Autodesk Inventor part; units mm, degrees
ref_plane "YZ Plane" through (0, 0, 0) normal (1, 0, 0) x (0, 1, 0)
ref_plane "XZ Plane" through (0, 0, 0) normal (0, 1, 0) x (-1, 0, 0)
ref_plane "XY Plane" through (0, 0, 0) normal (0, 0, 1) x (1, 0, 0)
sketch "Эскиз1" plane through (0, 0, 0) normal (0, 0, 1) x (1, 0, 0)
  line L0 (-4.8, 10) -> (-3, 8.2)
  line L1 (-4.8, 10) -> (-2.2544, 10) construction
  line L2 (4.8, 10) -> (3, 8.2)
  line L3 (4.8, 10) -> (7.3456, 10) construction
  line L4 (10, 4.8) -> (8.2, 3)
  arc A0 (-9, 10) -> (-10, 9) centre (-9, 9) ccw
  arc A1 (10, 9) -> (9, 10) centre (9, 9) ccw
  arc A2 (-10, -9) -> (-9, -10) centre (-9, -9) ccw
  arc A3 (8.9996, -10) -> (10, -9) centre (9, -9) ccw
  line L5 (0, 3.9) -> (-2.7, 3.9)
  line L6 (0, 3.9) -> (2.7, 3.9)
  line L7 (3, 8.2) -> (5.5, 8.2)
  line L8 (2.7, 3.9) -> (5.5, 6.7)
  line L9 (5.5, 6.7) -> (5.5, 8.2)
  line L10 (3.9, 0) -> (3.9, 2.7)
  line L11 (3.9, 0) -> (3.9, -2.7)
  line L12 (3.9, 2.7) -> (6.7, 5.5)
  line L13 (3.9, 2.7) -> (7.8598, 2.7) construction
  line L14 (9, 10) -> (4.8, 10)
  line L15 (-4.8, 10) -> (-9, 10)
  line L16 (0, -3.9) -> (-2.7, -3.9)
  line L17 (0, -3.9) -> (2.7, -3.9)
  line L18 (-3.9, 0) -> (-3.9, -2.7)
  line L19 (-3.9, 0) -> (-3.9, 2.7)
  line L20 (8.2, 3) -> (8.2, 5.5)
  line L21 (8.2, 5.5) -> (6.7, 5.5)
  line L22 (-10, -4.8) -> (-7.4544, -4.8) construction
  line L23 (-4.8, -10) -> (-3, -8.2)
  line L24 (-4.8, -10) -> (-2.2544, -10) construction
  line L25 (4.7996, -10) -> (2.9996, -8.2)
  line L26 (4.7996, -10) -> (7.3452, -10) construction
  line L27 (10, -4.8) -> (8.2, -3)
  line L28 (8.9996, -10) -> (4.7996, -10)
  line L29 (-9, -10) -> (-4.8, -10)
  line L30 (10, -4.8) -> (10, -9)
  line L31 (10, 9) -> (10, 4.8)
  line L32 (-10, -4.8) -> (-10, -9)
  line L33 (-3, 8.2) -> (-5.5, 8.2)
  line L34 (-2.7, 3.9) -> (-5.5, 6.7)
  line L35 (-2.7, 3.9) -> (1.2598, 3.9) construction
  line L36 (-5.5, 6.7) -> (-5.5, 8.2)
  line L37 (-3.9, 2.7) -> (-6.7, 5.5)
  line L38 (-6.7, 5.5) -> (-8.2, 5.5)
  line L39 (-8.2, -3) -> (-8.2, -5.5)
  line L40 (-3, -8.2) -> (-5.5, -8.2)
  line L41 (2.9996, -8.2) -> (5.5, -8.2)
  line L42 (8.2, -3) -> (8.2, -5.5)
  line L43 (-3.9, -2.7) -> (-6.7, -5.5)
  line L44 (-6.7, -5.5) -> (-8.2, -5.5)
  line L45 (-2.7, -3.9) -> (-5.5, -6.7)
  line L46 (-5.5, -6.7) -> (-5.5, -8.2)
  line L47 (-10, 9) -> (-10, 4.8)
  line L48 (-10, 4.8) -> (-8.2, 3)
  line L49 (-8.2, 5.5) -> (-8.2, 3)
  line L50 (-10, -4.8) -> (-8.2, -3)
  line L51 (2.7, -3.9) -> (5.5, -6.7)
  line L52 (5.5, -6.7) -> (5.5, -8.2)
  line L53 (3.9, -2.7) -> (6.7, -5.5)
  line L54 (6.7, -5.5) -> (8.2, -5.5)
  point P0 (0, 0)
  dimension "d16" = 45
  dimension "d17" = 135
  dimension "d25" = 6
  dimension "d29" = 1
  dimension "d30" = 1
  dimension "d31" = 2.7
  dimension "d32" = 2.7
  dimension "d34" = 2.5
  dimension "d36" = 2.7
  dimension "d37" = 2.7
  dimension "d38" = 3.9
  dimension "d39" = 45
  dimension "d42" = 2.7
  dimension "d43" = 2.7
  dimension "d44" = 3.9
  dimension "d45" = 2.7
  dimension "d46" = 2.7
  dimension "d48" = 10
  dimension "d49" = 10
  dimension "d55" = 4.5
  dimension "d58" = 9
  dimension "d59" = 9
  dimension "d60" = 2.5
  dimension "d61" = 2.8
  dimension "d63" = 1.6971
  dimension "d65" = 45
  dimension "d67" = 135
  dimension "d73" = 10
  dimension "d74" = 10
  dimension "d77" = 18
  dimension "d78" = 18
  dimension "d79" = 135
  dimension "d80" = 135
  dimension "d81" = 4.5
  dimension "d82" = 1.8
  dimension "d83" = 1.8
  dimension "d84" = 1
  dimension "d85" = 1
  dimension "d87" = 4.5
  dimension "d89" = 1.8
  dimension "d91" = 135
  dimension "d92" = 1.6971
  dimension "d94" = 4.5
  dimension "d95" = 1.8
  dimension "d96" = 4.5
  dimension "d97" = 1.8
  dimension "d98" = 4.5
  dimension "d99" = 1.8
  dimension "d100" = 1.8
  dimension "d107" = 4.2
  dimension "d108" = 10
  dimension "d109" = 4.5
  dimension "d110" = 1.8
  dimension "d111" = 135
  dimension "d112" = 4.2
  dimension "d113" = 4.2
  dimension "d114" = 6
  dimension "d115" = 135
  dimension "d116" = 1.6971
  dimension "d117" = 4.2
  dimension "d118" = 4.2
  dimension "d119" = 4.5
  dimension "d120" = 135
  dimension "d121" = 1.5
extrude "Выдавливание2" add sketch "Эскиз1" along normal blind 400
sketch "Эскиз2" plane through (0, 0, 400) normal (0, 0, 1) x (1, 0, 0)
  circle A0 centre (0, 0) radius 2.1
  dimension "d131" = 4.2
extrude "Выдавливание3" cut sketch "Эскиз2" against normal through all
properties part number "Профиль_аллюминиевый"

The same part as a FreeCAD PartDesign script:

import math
import FreeCAD as App
import Part
import Sketcher

doc = App.newDocument("Part")
body = doc.addObject("PartDesign::Body", "Body")

# Sketch on XY plane
sketch1 = doc.addObject("Sketcher::SketchObject", "Sketch")
body.addObject(sketch1)
sketch1.AttachmentSupport = (doc.XY_Plane, [""])
sketch1.MapMode = "FlatFace"
sketch1.addGeometry(Part.LineSegment(App.Vector(-3, 8.2, 0), App.Vector(-4.8, 10, 0)), False)
sketch1.addGeometry(Part.LineSegment(App.Vector(-4.8, 10, 0), App.Vector(-9, 10, 0)), False)
sketch1.addGeometry(Part.ArcOfCircle(Part.Circle(App.Vector(-9, 9, 0), App.Vector(0, 0, 1), 1), math.radians(90), math.radians(180)), False)
sketch1.addGeometry(Part.LineSegment(App.Vector(-10, 9, 0), App.Vector(-10, 4.8, 0)), False)
sketch1.addGeometry(Part.LineSegment(App.Vector(-10, 4.8, 0), App.Vector(-8.2, 3, 0)), False)
sketch1.addGeometry(Part.LineSegment(App.Vector(-8.2, 3, 0), App.Vector(-8.2, 5.5, 0)), False)
sketch1.addGeometry(Part.LineSegment(App.Vector(-8.2, 5.5, 0), App.Vector(-6.7, 5.5, 0)), False)
sketch1.addGeometry(Part.LineSegment(App.Vector(-6.7, 5.5, 0), App.Vector(-3.9, 2.7, 0)), False)
sketch1.addGeometry(Part.LineSegment(App.Vector(-3.9, 2.7, 0), App.Vector(-3.9, -2.7, 0)), False)
sketch1.addGeometry(Part.LineSegment(App.Vector(-3.9, -2.7, 0), App.Vector(-6.7, -5.5, 0)), False)
sketch1.addGeometry(Part.LineSegment(App.Vector(-6.7, -5.5, 0), App.Vector(-8.2, -5.5, 0)), False)
sketch1.addGeometry(Part.LineSegment(App.Vector(-8.2, -5.5, 0), App.Vector(-8.2, -3, 0)), False)
sketch1.addGeometry(Part.LineSegment(App.Vector(-8.2, -3, 0), App.Vector(-10, -4.8, 0)), False)
sketch1.addGeometry(Part.LineSegment(App.Vector(-10, -4.8, 0), App.Vector(-10, -9, 0)), False)
sketch1.addGeometry(Part.ArcOfCircle(Part.Circle(App.Vector(-9, -9, 0), App.Vector(0, 0, 1), 1), math.radians(180), math.radians(270)), False)
sketch1.addGeometry(Part.LineSegment(App.Vector(-9, -10, 0), App.Vector(-4.8, -10, 0)), False)
sketch1.addGeometry(Part.LineSegment(App.Vector(-4.8, -10, 0), App.Vector(-3, -8.2, 0)), False)
sketch1.addGeometry(Part.LineSegment(App.Vector(-3, -8.2, 0), App.Vector(-5.5, -8.2, 0)), False)
sketch1.addGeometry(Part.LineSegment(App.Vector(-5.5, -8.2, 0), App.Vector(-5.5, -6.7, 0)), False)
sketch1.addGeometry(Part.LineSegment(App.Vector(-5.5, -6.7, 0), App.Vector(-2.7, -3.9, 0)), False)
sketch1.addGeometry(Part.LineSegment(App.Vector(-2.7, -3.9, 0), App.Vector(2.7, -3.9, 0)), False)
sketch1.addGeometry(Part.LineSegment(App.Vector(2.7, -3.9, 0), App.Vector(5.5, -6.7, 0)), False)
sketch1.addGeometry(Part.LineSegment(App.Vector(5.5, -6.7, 0), App.Vector(5.5, -8.2, 0)), False)
sketch1.addGeometry(Part.LineSegment(App.Vector(5.5, -8.2, 0), App.Vector(3, -8.2, 0)), False)
sketch1.addGeometry(Part.LineSegment(App.Vector(3, -8.2, 0), App.Vector(4.8, -10, 0)), False)
sketch1.addGeometry(Part.LineSegment(App.Vector(4.8, -10, 0), App.Vector(9, -10, 0)), False)
sketch1.addGeometry(Part.ArcOfCircle(Part.Circle(App.Vector(9, -9, 0), App.Vector(0, 0, 1), 1), math.radians(-90), math.radians(0)), False)
sketch1.addGeometry(Part.LineSegment(App.Vector(10, -9, 0), App.Vector(10, -4.8, 0)), False)
sketch1.addGeometry(Part.LineSegment(App.Vector(10, -4.8, 0), App.Vector(8.2, -3, 0)), False)
sketch1.addGeometry(Part.LineSegment(App.Vector(8.2, -3, 0), App.Vector(8.2, -5.5, 0)), False)
sketch1.addGeometry(Part.LineSegment(App.Vector(8.2, -5.5, 0), App.Vector(6.7, -5.5, 0)), False)
sketch1.addGeometry(Part.LineSegment(App.Vector(6.7, -5.5, 0), App.Vector(3.9, -2.7, 0)), False)
sketch1.addGeometry(Part.LineSegment(App.Vector(3.9, -2.7, 0), App.Vector(3.9, 2.7, 0)), False)
sketch1.addGeometry(Part.LineSegment(App.Vector(3.9, 2.7, 0), App.Vector(6.7, 5.5, 0)), False)
sketch1.addGeometry(Part.LineSegment(App.Vector(6.7, 5.5, 0), App.Vector(8.2, 5.5, 0)), False)
sketch1.addGeometry(Part.LineSegment(App.Vector(8.2, 5.5, 0), App.Vector(8.2, 3, 0)), False)
sketch1.addGeometry(Part.LineSegment(App.Vector(8.2, 3, 0), App.Vector(10, 4.8, 0)), False)
sketch1.addGeometry(Part.LineSegment(App.Vector(10, 4.8, 0), App.Vector(10, 9, 0)), False)
sketch1.addGeometry(Part.ArcOfCircle(Part.Circle(App.Vector(9, 9, 0), App.Vector(0, 0, 1), 1), math.radians(0), math.radians(90)), False)
sketch1.addGeometry(Part.LineSegment(App.Vector(9, 10, 0), App.Vector(4.8, 10, 0)), False)
sketch1.addGeometry(Part.LineSegment(App.Vector(4.8, 10, 0), App.Vector(3, 8.2, 0)), False)
sketch1.addGeometry(Part.LineSegment(App.Vector(3, 8.2, 0), App.Vector(5.5, 8.2, 0)), False)
sketch1.addGeometry(Part.LineSegment(App.Vector(5.5, 8.2, 0), App.Vector(5.5, 6.7, 0)), False)
sketch1.addGeometry(Part.LineSegment(App.Vector(5.5, 6.7, 0), App.Vector(2.7, 3.9, 0)), False)
sketch1.addGeometry(Part.LineSegment(App.Vector(2.7, 3.9, 0), App.Vector(-2.7, 3.9, 0)), False)
sketch1.addGeometry(Part.LineSegment(App.Vector(-2.7, 3.9, 0), App.Vector(-5.5, 6.7, 0)), False)
sketch1.addGeometry(Part.LineSegment(App.Vector(-5.5, 6.7, 0), App.Vector(-5.5, 8.2, 0)), False)
sketch1.addGeometry(Part.LineSegment(App.Vector(-5.5, 8.2, 0), App.Vector(-3, 8.2, 0)), False)
sketch1.addConstraint(Sketcher.Constraint("Coincident", 0, 2, 1, 1))
sketch1.addConstraint(Sketcher.Constraint("Tangent", 1, 2, 2, 1))
sketch1.addConstraint(Sketcher.Constraint("Tangent", 2, 2, 3, 1))
sketch1.addConstraint(Sketcher.Constraint("Coincident", 3, 2, 4, 1))
sketch1.addConstraint(Sketcher.Constraint("Coincident", 4, 2, 5, 1))
sketch1.addConstraint(Sketcher.Constraint("Coincident", 5, 2, 6, 1))
sketch1.addConstraint(Sketcher.Constraint("Coincident", 6, 2, 7, 1))
sketch1.addConstraint(Sketcher.Constraint("Coincident", 7, 2, 8, 1))
sketch1.addConstraint(Sketcher.Constraint("Coincident", 8, 2, 9, 1))
sketch1.addConstraint(Sketcher.Constraint("Coincident", 9, 2, 10, 1))
sketch1.addConstraint(Sketcher.Constraint("Coincident", 10, 2, 11, 1))
sketch1.addConstraint(Sketcher.Constraint("Coincident", 11, 2, 12, 1))
sketch1.addConstraint(Sketcher.Constraint("Coincident", 12, 2, 13, 1))
sketch1.addConstraint(Sketcher.Constraint("Tangent", 13, 2, 14, 1))
sketch1.addConstraint(Sketcher.Constraint("Tangent", 14, 2, 15, 1))
sketch1.addConstraint(Sketcher.Constraint("Coincident", 15, 2, 16, 1))
sketch1.addConstraint(Sketcher.Constraint("Coincident", 16, 2, 17, 1))
sketch1.addConstraint(Sketcher.Constraint("Coincident", 17, 2, 18, 1))
sketch1.addConstraint(Sketcher.Constraint("Coincident", 18, 2, 19, 1))
sketch1.addConstraint(Sketcher.Constraint("Coincident", 19, 2, 20, 1))
sketch1.addConstraint(Sketcher.Constraint("Coincident", 20, 2, 21, 1))
sketch1.addConstraint(Sketcher.Constraint("Coincident", 21, 2, 22, 1))
sketch1.addConstraint(Sketcher.Constraint("Coincident", 22, 2, 23, 1))
sketch1.addConstraint(Sketcher.Constraint("Coincident", 23, 2, 24, 1))
sketch1.addConstraint(Sketcher.Constraint("Coincident", 24, 2, 25, 1))
sketch1.addConstraint(Sketcher.Constraint("Tangent", 25, 2, 26, 1))
sketch1.addConstraint(Sketcher.Constraint("Tangent", 26, 2, 27, 1))
sketch1.addConstraint(Sketcher.Constraint("Coincident", 27, 2, 28, 1))
sketch1.addConstraint(Sketcher.Constraint("Coincident", 28, 2, 29, 1))
sketch1.addConstraint(Sketcher.Constraint("Coincident", 29, 2, 30, 1))
sketch1.addConstraint(Sketcher.Constraint("Coincident", 30, 2, 31, 1))
sketch1.addConstraint(Sketcher.Constraint("Coincident", 31, 2, 32, 1))
sketch1.addConstraint(Sketcher.Constraint("Coincident", 32, 2, 33, 1))
sketch1.addConstraint(Sketcher.Constraint("Coincident", 33, 2, 34, 1))
sketch1.addConstraint(Sketcher.Constraint("Coincident", 34, 2, 35, 1))
sketch1.addConstraint(Sketcher.Constraint("Coincident", 35, 2, 36, 1))
sketch1.addConstraint(Sketcher.Constraint("Coincident", 36, 2, 37, 1))
sketch1.addConstraint(Sketcher.Constraint("Tangent", 37, 2, 38, 1))
sketch1.addConstraint(Sketcher.Constraint("Tangent", 38, 2, 39, 1))
sketch1.addConstraint(Sketcher.Constraint("Coincident", 39, 2, 40, 1))
sketch1.addConstraint(Sketcher.Constraint("Coincident", 40, 2, 41, 1))
sketch1.addConstraint(Sketcher.Constraint("Coincident", 41, 2, 42, 1))
sketch1.addConstraint(Sketcher.Constraint("Coincident", 42, 2, 43, 1))
sketch1.addConstraint(Sketcher.Constraint("Coincident", 43, 2, 44, 1))
sketch1.addConstraint(Sketcher.Constraint("Coincident", 44, 2, 45, 1))
sketch1.addConstraint(Sketcher.Constraint("Coincident", 45, 2, 46, 1))
sketch1.addConstraint(Sketcher.Constraint("Coincident", 46, 2, 47, 1))
sketch1.addConstraint(Sketcher.Constraint("Coincident", 47, 2, 0, 1))
sketch1.addConstraint(Sketcher.Constraint("Horizontal", 1))
sketch1.addConstraint(Sketcher.Constraint("Vertical", 3))
sketch1.addConstraint(Sketcher.Constraint("Vertical", 5))
sketch1.addConstraint(Sketcher.Constraint("Horizontal", 6))
sketch1.addConstraint(Sketcher.Constraint("Vertical", 8))
sketch1.addConstraint(Sketcher.Constraint("Horizontal", 10))
sketch1.addConstraint(Sketcher.Constraint("Vertical", 11))
sketch1.addConstraint(Sketcher.Constraint("Vertical", 13))
sketch1.addConstraint(Sketcher.Constraint("Horizontal", 15))
sketch1.addConstraint(Sketcher.Constraint("Horizontal", 17))
sketch1.addConstraint(Sketcher.Constraint("Vertical", 18))
sketch1.addConstraint(Sketcher.Constraint("Horizontal", 20))
sketch1.addConstraint(Sketcher.Constraint("Vertical", 22))
sketch1.addConstraint(Sketcher.Constraint("Horizontal", 23))
sketch1.addConstraint(Sketcher.Constraint("Horizontal", 25))
sketch1.addConstraint(Sketcher.Constraint("Vertical", 27))
sketch1.addConstraint(Sketcher.Constraint("Vertical", 29))
sketch1.addConstraint(Sketcher.Constraint("Horizontal", 30))
sketch1.addConstraint(Sketcher.Constraint("Vertical", 32))
sketch1.addConstraint(Sketcher.Constraint("Horizontal", 34))
sketch1.addConstraint(Sketcher.Constraint("Vertical", 35))
sketch1.addConstraint(Sketcher.Constraint("Vertical", 37))
sketch1.addConstraint(Sketcher.Constraint("Horizontal", 39))
sketch1.addConstraint(Sketcher.Constraint("Horizontal", 41))
sketch1.addConstraint(Sketcher.Constraint("Vertical", 42))
sketch1.addConstraint(Sketcher.Constraint("Horizontal", 44))
sketch1.addConstraint(Sketcher.Constraint("Vertical", 46))
sketch1.addConstraint(Sketcher.Constraint("Horizontal", 47))
sketch1.addConstraint(Sketcher.Constraint("Equal", 2, 14))
sketch1.addConstraint(Sketcher.Constraint("Equal", 14, 26))
sketch1.addConstraint(Sketcher.Constraint("Equal", 26, 38))
sketch1.addConstraint(Sketcher.Constraint("Symmetric", 2, 3, 26, 3, -1, 1))
sketch1.addConstraint(Sketcher.Constraint("Symmetric", 14, 3, 38, 3, -1, 1))
sketch1.addConstraint(Sketcher.Constraint("Symmetric", 4, 2, 28, 2, -1, 1))
sketch1.addConstraint(Sketcher.Constraint("Symmetric", 6, 2, 30, 2, -1, 1))
sketch1.addConstraint(Sketcher.Constraint("Symmetric", 7, 2, 31, 2, -1, 1))
sketch1.addConstraint(Sketcher.Constraint("Symmetric", 9, 2, 33, 2, -1, 1))
sketch1.addConstraint(Sketcher.Constraint("Symmetric", 11, 2, 35, 2, -1, 1))
sketch1.addConstraint(Sketcher.Constraint("Symmetric", 16, 2, 40, 2, -1, 1))
sketch1.addConstraint(Sketcher.Constraint("Symmetric", 18, 2, 42, 2, -1, 1))
sketch1.addConstraint(Sketcher.Constraint("Symmetric", 19, 2, 43, 2, -1, 1))
sketch1.addConstraint(Sketcher.Constraint("Symmetric", 21, 2, 45, 2, -1, 1))
sketch1.addConstraint(Sketcher.Constraint("Symmetric", 23, 2, 47, 2, -1, 1))
sketch1.addConstraint(Sketcher.Constraint("Symmetric", 14, 3, 26, 3, -2))
sketch1.addConstraint(Sketcher.Constraint("Symmetric", 18, 2, 21, 2, -2))
sketch1.addConstraint(Sketcher.Constraint("Symmetric", 16, 2, 23, 2, -2))
sketch1.addConstraint(Sketcher.Constraint("Symmetric", 11, 2, 28, 2, -2))
sketch1.addConstraint(Sketcher.Constraint("Symmetric", 9, 2, 30, 2, -2))
sketch1.addConstraint(Sketcher.Constraint("Parallel", 0, 4))
sketch1.addConstraint(Sketcher.Constraint("Parallel", 4, 7))
sketch1.addConstraint(Sketcher.Constraint("Perpendicular", 7, 9))
sketch1.addConstraint(Sketcher.Constraint("Parallel", 9, 12))
sketch1.addConstraint(Sketcher.Constraint("Parallel", 12, 16))
sketch1.addConstraint(Sketcher.Constraint("Parallel", 16, 19))
sketch1.addConstraint(Sketcher.Constraint("Perpendicular", 19, 21))
sketch1.addConstraint(Sketcher.Constraint("Parallel", 21, 24))
sketch1.addConstraint(Sketcher.Constraint("Parallel", 24, 28))
sketch1.addConstraint(Sketcher.Constraint("Perpendicular", 31, 33))
sketch1.addConstraint(Sketcher.Constraint("Parallel", 33, 36))
sketch1.addConstraint(Sketcher.Constraint("Parallel", 36, 40))
sketch1.addConstraint(Sketcher.Constraint("Perpendicular", 43, 45))
sketch1.addConstraint(Sketcher.Constraint("Horizontal", 12, 2, 27, 2))
sketch1.addConstraint(Sketcher.Constraint("Equal", 39, 3))
sketch1.addConstraint(Sketcher.Constraint("Equal", 47, 5))
sketch1.addConstraint(Sketcher.Constraint("Equal", 44, 8))
sketch1.addConstraint(Sketcher.Constraint("Equal", 34, 18))
sketch1.addConstraint(Sketcher.Constraint("Equal", 0, 4))
sketch1.addConstraint(Sketcher.Constraint("Equal", 9, 19))
sketch1.addConstraint(Sketcher.Constraint("Radius", 2, 1.0))
sketch1.addConstraint(Sketcher.Constraint("DistanceX", 1, 2, 1, 1, 4.2))
sketch1.addConstraint(Sketcher.Constraint("DistanceX", 6, 1, 6, 2, 1.5))
sketch1.addConstraint(Sketcher.Constraint("DistanceX", 17, 2, 17, 1, 2.5))
sketch1.addConstraint(Sketcher.Constraint("DistanceX", 2, 3, -1, 1, 9.0))
sketch1.addConstraint(Sketcher.Constraint("DistanceY", 4, 2, 2, 3, 6.0))
sketch1.addConstraint(Sketcher.Constraint("DistanceX", 7, 2, -1, 1, 3.9))
pad1 = doc.addObject("PartDesign::Pad", "Pad")
body.addObject(pad1)
pad1.Profile = sketch1
pad1.Length = 400

# Sketch on XY plane
sketch2 = doc.addObject("Sketcher::SketchObject", "Sketch001")
body.addObject(sketch2)
sketch2.AttachmentSupport = (doc.XY_Plane, [""])
sketch2.MapMode = "FlatFace"
sketch2.AttachmentOffset = App.Placement(App.Vector(0, 0, 400), App.Rotation())
sketch2.addGeometry(Part.Circle(App.Vector(0, 0, 0), App.Vector(0, 0, 1), 2.1), False)
sketch2.addConstraint(Sketcher.Constraint("Coincident", 0, 3, -1, 1))
sketch2.addConstraint(Sketcher.Constraint("Diameter", 0, 4.2))
pocket1 = doc.addObject("PartDesign::Pocket", "Pocket")
body.addObject(pocket1)
pocket1.Profile = sketch2
pocket1.Type = "ThroughAll"

doc.recompute()
